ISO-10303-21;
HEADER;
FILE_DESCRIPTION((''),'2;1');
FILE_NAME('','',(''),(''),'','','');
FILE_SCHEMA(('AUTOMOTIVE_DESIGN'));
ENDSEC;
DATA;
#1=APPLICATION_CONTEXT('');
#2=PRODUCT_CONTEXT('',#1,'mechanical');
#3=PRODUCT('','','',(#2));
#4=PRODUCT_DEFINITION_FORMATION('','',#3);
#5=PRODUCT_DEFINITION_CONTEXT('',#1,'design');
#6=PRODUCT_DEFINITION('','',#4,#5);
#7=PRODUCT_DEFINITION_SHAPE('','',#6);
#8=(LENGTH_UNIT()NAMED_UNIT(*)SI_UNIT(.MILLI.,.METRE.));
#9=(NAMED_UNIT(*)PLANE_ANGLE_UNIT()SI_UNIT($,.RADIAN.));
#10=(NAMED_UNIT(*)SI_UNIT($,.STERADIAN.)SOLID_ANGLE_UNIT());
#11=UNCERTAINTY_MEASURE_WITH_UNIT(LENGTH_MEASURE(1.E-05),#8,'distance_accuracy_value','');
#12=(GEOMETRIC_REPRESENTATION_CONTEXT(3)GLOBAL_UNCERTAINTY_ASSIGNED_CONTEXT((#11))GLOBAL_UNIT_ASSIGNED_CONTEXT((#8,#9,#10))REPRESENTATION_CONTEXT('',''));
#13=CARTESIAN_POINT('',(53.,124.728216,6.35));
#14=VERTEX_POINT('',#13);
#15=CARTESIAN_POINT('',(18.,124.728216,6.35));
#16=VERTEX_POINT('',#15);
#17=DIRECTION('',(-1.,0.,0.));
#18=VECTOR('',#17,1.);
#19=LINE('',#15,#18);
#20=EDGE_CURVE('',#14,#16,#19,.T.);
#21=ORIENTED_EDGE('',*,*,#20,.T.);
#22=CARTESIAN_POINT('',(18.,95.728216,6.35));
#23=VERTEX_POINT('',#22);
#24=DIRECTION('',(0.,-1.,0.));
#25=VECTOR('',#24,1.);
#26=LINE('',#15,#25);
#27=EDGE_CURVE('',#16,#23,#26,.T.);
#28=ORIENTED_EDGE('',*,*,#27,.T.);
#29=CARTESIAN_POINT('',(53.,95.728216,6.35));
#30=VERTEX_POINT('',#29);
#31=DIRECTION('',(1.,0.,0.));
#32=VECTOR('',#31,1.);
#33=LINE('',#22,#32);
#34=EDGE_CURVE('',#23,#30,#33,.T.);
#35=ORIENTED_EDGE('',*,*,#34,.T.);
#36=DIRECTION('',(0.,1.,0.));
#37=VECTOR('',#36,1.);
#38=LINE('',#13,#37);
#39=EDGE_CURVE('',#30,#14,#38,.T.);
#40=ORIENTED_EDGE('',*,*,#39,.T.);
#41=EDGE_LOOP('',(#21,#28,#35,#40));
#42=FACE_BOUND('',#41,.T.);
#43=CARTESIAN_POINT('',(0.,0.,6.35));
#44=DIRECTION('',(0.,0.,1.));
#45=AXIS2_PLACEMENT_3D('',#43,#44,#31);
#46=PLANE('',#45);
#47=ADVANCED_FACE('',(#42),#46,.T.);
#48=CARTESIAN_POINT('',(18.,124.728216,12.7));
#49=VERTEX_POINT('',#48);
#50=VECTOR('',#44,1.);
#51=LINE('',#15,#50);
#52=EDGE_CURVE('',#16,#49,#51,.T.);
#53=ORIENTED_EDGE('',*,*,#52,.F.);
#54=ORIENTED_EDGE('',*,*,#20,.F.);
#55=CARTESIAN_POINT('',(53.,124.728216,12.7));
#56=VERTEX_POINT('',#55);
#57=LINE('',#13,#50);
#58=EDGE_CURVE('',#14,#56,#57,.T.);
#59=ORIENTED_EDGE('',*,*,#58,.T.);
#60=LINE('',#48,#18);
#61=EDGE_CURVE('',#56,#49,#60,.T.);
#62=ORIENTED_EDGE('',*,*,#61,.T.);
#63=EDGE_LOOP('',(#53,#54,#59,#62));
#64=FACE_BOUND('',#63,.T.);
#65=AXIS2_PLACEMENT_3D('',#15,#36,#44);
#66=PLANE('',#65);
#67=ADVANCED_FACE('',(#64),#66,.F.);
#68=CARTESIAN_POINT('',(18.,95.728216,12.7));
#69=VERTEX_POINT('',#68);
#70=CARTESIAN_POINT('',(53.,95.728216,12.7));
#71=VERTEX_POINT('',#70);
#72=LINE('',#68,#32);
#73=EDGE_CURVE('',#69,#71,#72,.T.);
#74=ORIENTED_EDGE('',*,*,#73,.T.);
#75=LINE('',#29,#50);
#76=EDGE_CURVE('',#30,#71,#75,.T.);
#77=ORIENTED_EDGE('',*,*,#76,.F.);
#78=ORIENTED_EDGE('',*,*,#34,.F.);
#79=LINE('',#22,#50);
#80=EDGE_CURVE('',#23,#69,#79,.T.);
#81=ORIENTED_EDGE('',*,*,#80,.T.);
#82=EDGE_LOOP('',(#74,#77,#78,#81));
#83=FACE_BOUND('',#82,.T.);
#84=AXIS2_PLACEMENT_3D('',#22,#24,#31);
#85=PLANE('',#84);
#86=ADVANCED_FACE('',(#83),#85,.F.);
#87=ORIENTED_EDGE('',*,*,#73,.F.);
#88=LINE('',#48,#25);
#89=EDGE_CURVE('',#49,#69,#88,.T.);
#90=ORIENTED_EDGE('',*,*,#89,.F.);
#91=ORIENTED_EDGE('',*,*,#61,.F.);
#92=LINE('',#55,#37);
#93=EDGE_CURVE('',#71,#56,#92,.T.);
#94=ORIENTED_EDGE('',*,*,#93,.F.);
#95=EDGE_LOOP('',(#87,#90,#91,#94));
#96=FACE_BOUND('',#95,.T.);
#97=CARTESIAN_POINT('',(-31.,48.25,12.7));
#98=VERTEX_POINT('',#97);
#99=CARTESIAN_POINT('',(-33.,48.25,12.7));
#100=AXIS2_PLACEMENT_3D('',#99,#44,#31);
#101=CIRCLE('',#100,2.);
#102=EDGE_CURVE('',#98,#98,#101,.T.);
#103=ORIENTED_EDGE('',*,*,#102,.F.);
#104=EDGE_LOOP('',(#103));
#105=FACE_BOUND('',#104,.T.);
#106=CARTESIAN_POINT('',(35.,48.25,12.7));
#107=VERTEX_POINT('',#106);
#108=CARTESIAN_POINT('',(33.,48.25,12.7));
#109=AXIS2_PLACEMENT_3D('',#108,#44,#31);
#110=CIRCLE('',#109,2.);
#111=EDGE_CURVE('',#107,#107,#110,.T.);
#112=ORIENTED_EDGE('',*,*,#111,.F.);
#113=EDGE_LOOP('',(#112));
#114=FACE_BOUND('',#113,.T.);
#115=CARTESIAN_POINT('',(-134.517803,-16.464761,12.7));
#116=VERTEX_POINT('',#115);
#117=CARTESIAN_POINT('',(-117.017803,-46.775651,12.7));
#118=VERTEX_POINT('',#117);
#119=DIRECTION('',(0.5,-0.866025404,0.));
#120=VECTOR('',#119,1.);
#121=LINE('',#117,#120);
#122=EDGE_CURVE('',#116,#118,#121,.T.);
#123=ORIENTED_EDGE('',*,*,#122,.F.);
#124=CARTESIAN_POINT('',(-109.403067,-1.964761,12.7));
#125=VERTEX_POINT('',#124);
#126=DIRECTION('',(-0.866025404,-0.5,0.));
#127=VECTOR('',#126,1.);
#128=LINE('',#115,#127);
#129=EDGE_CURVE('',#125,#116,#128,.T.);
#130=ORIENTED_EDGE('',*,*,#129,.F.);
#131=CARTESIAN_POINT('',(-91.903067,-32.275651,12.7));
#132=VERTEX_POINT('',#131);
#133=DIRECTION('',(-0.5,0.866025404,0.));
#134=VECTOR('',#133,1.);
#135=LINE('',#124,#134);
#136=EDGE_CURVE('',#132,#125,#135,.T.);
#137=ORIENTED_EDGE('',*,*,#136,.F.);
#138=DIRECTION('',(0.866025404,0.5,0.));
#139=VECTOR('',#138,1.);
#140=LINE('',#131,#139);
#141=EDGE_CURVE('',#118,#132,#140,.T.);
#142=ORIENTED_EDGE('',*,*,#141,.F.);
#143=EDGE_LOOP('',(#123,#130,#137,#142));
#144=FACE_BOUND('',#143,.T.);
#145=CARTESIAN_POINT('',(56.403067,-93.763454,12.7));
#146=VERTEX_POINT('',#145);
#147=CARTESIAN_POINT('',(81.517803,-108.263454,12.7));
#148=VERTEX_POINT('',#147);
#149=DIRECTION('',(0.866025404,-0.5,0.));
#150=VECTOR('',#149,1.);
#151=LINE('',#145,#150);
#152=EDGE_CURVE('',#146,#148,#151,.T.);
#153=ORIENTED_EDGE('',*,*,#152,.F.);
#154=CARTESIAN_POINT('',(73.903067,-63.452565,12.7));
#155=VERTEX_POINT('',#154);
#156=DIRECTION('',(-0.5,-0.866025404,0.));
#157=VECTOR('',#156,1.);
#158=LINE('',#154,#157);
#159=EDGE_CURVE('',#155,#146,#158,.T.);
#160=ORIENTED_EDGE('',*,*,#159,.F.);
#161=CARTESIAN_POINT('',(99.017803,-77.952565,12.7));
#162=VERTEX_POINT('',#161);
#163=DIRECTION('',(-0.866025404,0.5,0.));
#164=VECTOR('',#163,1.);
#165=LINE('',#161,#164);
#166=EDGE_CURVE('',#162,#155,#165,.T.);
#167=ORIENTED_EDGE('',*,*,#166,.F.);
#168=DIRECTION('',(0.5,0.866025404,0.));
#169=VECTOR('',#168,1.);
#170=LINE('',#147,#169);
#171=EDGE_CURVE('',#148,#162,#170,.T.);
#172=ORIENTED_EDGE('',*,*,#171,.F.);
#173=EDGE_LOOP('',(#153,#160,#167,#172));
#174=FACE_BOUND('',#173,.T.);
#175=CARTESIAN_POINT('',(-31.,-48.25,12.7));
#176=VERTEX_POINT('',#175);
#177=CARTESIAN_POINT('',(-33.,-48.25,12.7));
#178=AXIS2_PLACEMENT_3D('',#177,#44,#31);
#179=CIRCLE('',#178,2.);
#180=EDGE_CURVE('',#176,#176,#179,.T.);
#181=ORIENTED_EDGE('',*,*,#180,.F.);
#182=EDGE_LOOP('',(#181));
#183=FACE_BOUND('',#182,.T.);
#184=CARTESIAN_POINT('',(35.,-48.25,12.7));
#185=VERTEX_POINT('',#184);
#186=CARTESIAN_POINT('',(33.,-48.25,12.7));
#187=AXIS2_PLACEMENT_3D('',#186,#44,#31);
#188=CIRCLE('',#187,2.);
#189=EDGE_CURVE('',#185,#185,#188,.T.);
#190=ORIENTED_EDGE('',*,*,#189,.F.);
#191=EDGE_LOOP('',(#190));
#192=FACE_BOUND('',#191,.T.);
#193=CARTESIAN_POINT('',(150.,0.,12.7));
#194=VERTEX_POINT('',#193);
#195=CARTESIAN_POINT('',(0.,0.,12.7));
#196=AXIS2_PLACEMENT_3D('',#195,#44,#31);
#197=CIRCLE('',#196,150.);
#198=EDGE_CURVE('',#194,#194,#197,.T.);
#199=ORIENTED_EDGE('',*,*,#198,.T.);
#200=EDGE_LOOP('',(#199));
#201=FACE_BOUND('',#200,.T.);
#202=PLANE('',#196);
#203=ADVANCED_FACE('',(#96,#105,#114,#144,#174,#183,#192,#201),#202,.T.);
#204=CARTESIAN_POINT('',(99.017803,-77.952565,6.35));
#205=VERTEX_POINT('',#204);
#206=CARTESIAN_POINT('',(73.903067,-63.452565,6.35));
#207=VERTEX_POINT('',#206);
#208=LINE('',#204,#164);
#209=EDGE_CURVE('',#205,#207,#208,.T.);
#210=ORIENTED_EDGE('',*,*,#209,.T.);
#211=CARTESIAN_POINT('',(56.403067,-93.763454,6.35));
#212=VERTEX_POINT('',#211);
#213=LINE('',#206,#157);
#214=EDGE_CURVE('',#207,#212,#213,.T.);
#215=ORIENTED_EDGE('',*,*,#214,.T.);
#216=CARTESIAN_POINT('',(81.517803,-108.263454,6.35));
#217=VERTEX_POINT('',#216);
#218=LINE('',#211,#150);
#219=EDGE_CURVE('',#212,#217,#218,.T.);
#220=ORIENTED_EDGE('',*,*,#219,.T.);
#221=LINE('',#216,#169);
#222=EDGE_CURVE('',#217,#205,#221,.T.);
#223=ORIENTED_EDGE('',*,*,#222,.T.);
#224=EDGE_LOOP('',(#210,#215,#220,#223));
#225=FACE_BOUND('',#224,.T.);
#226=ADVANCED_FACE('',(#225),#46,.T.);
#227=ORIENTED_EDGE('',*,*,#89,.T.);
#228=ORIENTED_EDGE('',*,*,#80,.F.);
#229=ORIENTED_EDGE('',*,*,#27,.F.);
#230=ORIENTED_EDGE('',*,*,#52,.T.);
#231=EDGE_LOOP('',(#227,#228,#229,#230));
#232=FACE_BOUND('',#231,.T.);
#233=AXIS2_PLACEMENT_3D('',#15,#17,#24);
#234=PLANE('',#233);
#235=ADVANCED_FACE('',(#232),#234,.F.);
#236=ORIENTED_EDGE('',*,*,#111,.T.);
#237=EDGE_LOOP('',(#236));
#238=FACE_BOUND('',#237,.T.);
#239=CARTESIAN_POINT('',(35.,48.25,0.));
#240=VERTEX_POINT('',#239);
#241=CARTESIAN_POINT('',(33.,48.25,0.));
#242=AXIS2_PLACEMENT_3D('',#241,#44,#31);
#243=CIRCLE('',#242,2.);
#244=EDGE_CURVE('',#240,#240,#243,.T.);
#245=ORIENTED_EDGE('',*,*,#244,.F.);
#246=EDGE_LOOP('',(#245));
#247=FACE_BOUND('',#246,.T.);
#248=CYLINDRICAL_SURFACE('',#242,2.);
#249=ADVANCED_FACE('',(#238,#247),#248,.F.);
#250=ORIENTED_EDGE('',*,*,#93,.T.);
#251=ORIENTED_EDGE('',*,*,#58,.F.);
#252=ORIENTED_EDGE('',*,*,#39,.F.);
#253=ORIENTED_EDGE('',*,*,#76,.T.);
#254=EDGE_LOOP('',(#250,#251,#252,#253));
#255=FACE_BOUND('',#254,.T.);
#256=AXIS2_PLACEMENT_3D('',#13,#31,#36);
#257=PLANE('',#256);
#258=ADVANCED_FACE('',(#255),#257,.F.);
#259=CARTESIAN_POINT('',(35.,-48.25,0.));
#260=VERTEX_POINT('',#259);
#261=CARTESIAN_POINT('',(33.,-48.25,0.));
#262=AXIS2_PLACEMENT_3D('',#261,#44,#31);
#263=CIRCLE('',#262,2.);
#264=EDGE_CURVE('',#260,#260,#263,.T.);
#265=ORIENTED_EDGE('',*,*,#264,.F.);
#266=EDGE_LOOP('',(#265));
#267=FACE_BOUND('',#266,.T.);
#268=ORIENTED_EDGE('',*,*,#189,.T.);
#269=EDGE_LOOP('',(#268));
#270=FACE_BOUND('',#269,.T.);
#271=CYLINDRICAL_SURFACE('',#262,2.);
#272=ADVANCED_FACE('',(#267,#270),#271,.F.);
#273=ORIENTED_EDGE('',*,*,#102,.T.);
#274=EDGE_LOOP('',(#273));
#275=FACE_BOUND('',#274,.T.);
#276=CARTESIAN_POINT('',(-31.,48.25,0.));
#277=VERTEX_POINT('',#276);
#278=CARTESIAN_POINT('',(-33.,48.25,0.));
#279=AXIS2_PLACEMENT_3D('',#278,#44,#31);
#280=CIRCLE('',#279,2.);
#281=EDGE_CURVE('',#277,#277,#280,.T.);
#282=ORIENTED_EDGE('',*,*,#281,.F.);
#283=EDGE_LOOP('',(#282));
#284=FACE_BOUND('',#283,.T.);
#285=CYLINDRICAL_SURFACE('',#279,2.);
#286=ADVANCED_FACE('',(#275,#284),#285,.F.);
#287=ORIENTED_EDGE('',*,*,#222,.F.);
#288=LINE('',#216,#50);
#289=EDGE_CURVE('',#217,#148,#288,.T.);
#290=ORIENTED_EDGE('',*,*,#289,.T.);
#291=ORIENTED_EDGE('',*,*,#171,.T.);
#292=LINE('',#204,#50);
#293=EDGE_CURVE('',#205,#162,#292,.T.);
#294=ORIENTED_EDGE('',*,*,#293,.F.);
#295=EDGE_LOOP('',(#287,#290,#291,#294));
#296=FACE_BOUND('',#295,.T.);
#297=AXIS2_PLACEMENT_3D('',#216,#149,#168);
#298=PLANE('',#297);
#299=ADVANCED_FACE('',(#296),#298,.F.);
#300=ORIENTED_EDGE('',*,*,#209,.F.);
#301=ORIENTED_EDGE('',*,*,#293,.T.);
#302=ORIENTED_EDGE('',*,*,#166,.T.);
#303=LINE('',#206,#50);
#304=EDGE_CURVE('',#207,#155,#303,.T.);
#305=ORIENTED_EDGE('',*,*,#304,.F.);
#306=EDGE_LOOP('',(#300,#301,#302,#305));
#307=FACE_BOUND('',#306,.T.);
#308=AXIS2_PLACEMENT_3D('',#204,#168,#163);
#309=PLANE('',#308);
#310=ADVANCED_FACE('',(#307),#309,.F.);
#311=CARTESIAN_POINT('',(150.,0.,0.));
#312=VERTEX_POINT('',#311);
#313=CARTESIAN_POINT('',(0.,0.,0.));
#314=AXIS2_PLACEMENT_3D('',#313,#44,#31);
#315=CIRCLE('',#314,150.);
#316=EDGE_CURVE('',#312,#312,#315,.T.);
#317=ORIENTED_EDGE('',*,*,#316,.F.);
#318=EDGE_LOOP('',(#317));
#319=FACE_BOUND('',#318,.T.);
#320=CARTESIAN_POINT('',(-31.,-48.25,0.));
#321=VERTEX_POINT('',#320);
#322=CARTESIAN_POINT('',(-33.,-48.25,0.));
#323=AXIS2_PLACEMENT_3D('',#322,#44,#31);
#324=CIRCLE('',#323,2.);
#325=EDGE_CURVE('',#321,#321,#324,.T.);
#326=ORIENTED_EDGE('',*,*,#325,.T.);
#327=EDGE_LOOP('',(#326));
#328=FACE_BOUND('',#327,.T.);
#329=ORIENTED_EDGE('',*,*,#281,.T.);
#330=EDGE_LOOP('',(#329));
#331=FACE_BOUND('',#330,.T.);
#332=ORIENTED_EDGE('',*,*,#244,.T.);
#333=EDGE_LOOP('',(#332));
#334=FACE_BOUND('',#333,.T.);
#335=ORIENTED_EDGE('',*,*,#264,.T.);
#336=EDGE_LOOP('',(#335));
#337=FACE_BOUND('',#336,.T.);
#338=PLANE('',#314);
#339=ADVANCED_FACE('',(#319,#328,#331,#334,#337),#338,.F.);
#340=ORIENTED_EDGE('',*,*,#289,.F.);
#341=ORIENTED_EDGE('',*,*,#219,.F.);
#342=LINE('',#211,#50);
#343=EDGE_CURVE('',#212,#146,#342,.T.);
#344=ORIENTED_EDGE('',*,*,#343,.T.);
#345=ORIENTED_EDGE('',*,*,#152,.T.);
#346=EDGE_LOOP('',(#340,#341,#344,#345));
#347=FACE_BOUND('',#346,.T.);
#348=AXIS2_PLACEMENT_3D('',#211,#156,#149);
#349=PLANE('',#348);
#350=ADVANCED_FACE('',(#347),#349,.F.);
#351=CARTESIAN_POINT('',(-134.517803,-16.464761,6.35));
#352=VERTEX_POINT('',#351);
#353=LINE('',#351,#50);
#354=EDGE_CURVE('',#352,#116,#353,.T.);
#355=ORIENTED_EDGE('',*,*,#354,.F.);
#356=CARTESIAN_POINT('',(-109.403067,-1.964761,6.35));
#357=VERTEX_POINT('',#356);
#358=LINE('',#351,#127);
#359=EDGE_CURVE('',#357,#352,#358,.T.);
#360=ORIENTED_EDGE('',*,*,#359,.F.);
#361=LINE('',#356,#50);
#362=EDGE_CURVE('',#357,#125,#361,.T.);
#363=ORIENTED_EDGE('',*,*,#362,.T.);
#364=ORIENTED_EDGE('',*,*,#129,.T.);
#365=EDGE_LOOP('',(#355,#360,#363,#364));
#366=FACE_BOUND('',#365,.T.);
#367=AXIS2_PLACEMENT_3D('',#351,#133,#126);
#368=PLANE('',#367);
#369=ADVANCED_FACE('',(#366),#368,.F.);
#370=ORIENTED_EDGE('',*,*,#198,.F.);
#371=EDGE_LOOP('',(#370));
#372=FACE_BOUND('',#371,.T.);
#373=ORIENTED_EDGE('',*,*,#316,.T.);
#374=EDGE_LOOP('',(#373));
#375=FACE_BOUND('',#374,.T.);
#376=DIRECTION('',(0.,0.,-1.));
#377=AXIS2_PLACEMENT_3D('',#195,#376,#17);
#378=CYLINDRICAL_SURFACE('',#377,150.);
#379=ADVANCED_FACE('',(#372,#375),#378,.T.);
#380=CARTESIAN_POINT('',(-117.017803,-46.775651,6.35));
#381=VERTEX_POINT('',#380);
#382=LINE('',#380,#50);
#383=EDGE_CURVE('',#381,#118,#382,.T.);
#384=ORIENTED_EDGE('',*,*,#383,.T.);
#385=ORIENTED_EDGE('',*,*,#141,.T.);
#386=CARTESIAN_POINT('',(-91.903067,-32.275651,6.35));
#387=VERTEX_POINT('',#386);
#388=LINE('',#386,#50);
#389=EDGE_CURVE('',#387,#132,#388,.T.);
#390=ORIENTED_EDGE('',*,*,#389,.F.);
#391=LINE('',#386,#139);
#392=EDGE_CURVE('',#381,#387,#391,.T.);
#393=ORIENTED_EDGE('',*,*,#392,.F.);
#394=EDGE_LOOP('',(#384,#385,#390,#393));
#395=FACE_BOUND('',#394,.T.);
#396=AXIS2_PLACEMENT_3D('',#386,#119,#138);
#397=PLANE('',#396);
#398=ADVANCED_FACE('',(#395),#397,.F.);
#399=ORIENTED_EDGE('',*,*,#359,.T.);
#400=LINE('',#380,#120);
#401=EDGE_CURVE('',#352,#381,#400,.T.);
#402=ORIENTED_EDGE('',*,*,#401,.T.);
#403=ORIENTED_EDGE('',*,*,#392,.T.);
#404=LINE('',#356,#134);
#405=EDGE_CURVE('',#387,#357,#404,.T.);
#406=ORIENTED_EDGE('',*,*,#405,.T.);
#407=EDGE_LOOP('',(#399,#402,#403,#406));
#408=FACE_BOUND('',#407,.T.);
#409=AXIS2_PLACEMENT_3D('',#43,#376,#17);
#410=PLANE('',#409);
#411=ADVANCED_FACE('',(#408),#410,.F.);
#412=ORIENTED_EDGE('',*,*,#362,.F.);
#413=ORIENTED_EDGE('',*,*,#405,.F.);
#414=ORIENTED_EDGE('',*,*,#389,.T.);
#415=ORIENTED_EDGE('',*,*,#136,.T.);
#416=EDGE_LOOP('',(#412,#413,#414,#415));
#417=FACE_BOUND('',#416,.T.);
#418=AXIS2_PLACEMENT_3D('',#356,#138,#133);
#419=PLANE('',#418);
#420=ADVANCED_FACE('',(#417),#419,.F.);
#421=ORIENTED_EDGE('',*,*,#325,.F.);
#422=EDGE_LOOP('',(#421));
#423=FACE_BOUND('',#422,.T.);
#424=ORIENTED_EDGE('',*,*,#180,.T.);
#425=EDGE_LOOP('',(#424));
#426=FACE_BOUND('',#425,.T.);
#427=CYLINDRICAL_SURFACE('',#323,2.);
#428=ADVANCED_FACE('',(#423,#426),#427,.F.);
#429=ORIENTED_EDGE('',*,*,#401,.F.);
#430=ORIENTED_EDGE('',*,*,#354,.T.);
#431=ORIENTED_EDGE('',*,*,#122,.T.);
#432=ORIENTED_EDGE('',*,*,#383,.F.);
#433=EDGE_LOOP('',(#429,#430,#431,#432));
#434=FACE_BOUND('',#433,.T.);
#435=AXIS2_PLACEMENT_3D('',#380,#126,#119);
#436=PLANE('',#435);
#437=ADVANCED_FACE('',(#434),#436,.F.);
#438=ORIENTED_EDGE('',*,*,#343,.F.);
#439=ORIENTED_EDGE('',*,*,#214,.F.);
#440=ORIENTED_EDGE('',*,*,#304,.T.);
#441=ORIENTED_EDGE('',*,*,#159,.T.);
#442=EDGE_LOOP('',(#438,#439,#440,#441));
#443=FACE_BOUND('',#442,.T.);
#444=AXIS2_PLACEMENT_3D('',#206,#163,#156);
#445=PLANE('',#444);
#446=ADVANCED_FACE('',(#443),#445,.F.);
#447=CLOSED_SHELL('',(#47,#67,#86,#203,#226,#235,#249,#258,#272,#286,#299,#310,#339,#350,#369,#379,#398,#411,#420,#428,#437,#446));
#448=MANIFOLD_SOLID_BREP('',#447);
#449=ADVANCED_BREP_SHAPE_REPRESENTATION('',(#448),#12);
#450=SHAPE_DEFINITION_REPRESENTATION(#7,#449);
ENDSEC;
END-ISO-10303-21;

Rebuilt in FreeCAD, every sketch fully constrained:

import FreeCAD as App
import Part
import Sketcher
from FreeCAD import Vector
Q = App.Units.Quantity


def add_polygon(sketch, points):
    """Adds a closed chain of lines whose ends are joined by coincident constraints."""
    first, n = sketch.GeometryCount, len(points)
    for a, b in zip(points, points[1:] + points[:1]):
        sketch.addGeometry(Part.LineSegment(App.Vector(*a, 0), App.Vector(*b, 0)), False)
    for i in range(n):
        sketch.addConstraint(Sketcher.Constraint("Coincident", first + i, 2, first + (i + 1) % n, 1))

doc = App.newDocument("Part")
body = doc.addObject("PartDesign::Body", "Body")

sketch1 = body.newObject("Sketcher::SketchObject", "Sketch")
sketch1.AttachmentSupport = (doc.getObject("XY_Plane"), [""])
sketch1.MapMode = "FlatFace"
sketch1.addGeometry(Part.Circle(Vector(0, 0, 0), Vector(0, 0, 1), 150), False)
sketch1.addConstraint([
    Sketcher.Constraint("Coincident", 0, 3, -1, 1),
    Sketcher.Constraint("Diameter", 0, Q("300 mm")),
])
pad1 = body.newObject("PartDesign::Pad", "Pad")
pad1.Profile = sketch1
pad1.Length = 12.7

sketch2 = body.newObject("Sketcher::SketchObject", "Sketch001")
sketch2.AttachmentSupport = (doc.getObject("XY_Plane"), [""])
sketch2.MapMode = "FlatFace"
sketch2.AttachmentOffset = App.Placement(Vector(0, 0, 12.7), App.Rotation())
sketch2.addGeometry([
    Part.Circle(Vector(-33, 48.2, 0), Vector(0, 0, 1), 2),
    Part.Circle(Vector(33, 48.2, 0), Vector(0, 0, 1), 2),
    Part.Circle(Vector(-33, -48.2, 0), Vector(0, 0, 1), 2),
    Part.Circle(Vector(33, -48.2, 0), Vector(0, 0, 1), 2),
], False)
sketch2.addConstraint([
    Sketcher.Constraint("Equal", 0, 1),
    Sketcher.Constraint("Equal", 1, 2),
    Sketcher.Constraint("Equal", 2, 3),
    Sketcher.Constraint("Symmetric", 1, 3, 2, 3, -1, 1),
    Sketcher.Constraint("Symmetric", 0, 3, 3, 3, -1, 1),
    Sketcher.Constraint("Symmetric", 0, 3, 1, 3, -2),
    Sketcher.Constraint("Diameter", 0, Q("4 mm")),
    Sketcher.Constraint("DistanceX", 0, 3, -1, 1, Q("33 mm")),
    Sketcher.Constraint("DistanceY", 2, 3, 0, 3, Q("96.5 mm")),
])
pocket1 = body.newObject("PartDesign::Pocket", "Pocket")
pocket1.Profile = sketch2
pocket1.Length = 12.7

sketch3 = body.newObject("Sketcher::SketchObject", "Sketch002")
sketch3.AttachmentSupport = (doc.getObject("XY_Plane"), [""])
sketch3.MapMode = "FlatFace"
sketch3.AttachmentOffset = App.Placement(Vector(0, 0, 12.7), App.Rotation())
add_polygon(sketch3, [(18, 125), (18, 96), (53, 96), (53, 125)])
add_polygon(sketch3, [(74, -63), (56, -94), (82, -108), (99, -78)])
add_polygon(sketch3, [(-92, -32), (-109, -2), (-135, -16), (-117, -47)])
sketch3.addConstraint([
    Sketcher.Constraint("Vertical", 0),
    Sketcher.Constraint("Horizontal", 1),
    Sketcher.Constraint("Vertical", 2),
    Sketcher.Constraint("Horizontal", 3),
    Sketcher.Constraint("Perpendicular", 4, 5),
    Sketcher.Constraint("Perpendicular", 5, 6),
    Sketcher.Constraint("Perpendicular", 6, 7),
    Sketcher.Constraint("Perpendicular", 8, 9),
    Sketcher.Constraint("Perpendicular", 9, 10),
    Sketcher.Constraint("Perpendicular", 10, 11),
    Sketcher.Constraint("Equal", 6, 8),
    Sketcher.Constraint("Equal", 7, 9),
    Sketcher.Constraint("DistanceX", 1, 1, 1, 2, Q("35 mm")),
    Sketcher.Constraint("DistanceY", 0, 2, 0, 1, Q("29 mm")),
    Sketcher.Constraint("Angle", 4, Q("-120 deg")),
    Sketcher.Constraint("Angle", 8, Q("120 deg")),
    Sketcher.Constraint("Distance", 4, Q("35 mm")),
    Sketcher.Constraint("Distance", 5, Q("29 mm")),
    Sketcher.Constraint("DistanceX", -1, 1, 0, 2, Q("18 mm")),
    Sketcher.Constraint("DistanceY", 8, 2, -1, 1, Q("1.964761 mm")),
    Sketcher.Constraint("DistanceY", 4, 2, 1, 2, Q("189.49167 mm")),
    Sketcher.Constraint("DistanceX", 9, 2, 4, 2, Q("190.92087 mm")),
    Sketcher.Constraint("DistanceY", -1, 1, 0, 2, Q("95.728216 mm")),
    Sketcher.Constraint("DistanceX", -1, 1, 4, 2, Q("56.403067 mm")),
])
pocket2 = body.newObject("PartDesign::Pocket", "Pocket001")
pocket2.Profile = sketch3
pocket2.Length = 6.35

doc.recompute()
